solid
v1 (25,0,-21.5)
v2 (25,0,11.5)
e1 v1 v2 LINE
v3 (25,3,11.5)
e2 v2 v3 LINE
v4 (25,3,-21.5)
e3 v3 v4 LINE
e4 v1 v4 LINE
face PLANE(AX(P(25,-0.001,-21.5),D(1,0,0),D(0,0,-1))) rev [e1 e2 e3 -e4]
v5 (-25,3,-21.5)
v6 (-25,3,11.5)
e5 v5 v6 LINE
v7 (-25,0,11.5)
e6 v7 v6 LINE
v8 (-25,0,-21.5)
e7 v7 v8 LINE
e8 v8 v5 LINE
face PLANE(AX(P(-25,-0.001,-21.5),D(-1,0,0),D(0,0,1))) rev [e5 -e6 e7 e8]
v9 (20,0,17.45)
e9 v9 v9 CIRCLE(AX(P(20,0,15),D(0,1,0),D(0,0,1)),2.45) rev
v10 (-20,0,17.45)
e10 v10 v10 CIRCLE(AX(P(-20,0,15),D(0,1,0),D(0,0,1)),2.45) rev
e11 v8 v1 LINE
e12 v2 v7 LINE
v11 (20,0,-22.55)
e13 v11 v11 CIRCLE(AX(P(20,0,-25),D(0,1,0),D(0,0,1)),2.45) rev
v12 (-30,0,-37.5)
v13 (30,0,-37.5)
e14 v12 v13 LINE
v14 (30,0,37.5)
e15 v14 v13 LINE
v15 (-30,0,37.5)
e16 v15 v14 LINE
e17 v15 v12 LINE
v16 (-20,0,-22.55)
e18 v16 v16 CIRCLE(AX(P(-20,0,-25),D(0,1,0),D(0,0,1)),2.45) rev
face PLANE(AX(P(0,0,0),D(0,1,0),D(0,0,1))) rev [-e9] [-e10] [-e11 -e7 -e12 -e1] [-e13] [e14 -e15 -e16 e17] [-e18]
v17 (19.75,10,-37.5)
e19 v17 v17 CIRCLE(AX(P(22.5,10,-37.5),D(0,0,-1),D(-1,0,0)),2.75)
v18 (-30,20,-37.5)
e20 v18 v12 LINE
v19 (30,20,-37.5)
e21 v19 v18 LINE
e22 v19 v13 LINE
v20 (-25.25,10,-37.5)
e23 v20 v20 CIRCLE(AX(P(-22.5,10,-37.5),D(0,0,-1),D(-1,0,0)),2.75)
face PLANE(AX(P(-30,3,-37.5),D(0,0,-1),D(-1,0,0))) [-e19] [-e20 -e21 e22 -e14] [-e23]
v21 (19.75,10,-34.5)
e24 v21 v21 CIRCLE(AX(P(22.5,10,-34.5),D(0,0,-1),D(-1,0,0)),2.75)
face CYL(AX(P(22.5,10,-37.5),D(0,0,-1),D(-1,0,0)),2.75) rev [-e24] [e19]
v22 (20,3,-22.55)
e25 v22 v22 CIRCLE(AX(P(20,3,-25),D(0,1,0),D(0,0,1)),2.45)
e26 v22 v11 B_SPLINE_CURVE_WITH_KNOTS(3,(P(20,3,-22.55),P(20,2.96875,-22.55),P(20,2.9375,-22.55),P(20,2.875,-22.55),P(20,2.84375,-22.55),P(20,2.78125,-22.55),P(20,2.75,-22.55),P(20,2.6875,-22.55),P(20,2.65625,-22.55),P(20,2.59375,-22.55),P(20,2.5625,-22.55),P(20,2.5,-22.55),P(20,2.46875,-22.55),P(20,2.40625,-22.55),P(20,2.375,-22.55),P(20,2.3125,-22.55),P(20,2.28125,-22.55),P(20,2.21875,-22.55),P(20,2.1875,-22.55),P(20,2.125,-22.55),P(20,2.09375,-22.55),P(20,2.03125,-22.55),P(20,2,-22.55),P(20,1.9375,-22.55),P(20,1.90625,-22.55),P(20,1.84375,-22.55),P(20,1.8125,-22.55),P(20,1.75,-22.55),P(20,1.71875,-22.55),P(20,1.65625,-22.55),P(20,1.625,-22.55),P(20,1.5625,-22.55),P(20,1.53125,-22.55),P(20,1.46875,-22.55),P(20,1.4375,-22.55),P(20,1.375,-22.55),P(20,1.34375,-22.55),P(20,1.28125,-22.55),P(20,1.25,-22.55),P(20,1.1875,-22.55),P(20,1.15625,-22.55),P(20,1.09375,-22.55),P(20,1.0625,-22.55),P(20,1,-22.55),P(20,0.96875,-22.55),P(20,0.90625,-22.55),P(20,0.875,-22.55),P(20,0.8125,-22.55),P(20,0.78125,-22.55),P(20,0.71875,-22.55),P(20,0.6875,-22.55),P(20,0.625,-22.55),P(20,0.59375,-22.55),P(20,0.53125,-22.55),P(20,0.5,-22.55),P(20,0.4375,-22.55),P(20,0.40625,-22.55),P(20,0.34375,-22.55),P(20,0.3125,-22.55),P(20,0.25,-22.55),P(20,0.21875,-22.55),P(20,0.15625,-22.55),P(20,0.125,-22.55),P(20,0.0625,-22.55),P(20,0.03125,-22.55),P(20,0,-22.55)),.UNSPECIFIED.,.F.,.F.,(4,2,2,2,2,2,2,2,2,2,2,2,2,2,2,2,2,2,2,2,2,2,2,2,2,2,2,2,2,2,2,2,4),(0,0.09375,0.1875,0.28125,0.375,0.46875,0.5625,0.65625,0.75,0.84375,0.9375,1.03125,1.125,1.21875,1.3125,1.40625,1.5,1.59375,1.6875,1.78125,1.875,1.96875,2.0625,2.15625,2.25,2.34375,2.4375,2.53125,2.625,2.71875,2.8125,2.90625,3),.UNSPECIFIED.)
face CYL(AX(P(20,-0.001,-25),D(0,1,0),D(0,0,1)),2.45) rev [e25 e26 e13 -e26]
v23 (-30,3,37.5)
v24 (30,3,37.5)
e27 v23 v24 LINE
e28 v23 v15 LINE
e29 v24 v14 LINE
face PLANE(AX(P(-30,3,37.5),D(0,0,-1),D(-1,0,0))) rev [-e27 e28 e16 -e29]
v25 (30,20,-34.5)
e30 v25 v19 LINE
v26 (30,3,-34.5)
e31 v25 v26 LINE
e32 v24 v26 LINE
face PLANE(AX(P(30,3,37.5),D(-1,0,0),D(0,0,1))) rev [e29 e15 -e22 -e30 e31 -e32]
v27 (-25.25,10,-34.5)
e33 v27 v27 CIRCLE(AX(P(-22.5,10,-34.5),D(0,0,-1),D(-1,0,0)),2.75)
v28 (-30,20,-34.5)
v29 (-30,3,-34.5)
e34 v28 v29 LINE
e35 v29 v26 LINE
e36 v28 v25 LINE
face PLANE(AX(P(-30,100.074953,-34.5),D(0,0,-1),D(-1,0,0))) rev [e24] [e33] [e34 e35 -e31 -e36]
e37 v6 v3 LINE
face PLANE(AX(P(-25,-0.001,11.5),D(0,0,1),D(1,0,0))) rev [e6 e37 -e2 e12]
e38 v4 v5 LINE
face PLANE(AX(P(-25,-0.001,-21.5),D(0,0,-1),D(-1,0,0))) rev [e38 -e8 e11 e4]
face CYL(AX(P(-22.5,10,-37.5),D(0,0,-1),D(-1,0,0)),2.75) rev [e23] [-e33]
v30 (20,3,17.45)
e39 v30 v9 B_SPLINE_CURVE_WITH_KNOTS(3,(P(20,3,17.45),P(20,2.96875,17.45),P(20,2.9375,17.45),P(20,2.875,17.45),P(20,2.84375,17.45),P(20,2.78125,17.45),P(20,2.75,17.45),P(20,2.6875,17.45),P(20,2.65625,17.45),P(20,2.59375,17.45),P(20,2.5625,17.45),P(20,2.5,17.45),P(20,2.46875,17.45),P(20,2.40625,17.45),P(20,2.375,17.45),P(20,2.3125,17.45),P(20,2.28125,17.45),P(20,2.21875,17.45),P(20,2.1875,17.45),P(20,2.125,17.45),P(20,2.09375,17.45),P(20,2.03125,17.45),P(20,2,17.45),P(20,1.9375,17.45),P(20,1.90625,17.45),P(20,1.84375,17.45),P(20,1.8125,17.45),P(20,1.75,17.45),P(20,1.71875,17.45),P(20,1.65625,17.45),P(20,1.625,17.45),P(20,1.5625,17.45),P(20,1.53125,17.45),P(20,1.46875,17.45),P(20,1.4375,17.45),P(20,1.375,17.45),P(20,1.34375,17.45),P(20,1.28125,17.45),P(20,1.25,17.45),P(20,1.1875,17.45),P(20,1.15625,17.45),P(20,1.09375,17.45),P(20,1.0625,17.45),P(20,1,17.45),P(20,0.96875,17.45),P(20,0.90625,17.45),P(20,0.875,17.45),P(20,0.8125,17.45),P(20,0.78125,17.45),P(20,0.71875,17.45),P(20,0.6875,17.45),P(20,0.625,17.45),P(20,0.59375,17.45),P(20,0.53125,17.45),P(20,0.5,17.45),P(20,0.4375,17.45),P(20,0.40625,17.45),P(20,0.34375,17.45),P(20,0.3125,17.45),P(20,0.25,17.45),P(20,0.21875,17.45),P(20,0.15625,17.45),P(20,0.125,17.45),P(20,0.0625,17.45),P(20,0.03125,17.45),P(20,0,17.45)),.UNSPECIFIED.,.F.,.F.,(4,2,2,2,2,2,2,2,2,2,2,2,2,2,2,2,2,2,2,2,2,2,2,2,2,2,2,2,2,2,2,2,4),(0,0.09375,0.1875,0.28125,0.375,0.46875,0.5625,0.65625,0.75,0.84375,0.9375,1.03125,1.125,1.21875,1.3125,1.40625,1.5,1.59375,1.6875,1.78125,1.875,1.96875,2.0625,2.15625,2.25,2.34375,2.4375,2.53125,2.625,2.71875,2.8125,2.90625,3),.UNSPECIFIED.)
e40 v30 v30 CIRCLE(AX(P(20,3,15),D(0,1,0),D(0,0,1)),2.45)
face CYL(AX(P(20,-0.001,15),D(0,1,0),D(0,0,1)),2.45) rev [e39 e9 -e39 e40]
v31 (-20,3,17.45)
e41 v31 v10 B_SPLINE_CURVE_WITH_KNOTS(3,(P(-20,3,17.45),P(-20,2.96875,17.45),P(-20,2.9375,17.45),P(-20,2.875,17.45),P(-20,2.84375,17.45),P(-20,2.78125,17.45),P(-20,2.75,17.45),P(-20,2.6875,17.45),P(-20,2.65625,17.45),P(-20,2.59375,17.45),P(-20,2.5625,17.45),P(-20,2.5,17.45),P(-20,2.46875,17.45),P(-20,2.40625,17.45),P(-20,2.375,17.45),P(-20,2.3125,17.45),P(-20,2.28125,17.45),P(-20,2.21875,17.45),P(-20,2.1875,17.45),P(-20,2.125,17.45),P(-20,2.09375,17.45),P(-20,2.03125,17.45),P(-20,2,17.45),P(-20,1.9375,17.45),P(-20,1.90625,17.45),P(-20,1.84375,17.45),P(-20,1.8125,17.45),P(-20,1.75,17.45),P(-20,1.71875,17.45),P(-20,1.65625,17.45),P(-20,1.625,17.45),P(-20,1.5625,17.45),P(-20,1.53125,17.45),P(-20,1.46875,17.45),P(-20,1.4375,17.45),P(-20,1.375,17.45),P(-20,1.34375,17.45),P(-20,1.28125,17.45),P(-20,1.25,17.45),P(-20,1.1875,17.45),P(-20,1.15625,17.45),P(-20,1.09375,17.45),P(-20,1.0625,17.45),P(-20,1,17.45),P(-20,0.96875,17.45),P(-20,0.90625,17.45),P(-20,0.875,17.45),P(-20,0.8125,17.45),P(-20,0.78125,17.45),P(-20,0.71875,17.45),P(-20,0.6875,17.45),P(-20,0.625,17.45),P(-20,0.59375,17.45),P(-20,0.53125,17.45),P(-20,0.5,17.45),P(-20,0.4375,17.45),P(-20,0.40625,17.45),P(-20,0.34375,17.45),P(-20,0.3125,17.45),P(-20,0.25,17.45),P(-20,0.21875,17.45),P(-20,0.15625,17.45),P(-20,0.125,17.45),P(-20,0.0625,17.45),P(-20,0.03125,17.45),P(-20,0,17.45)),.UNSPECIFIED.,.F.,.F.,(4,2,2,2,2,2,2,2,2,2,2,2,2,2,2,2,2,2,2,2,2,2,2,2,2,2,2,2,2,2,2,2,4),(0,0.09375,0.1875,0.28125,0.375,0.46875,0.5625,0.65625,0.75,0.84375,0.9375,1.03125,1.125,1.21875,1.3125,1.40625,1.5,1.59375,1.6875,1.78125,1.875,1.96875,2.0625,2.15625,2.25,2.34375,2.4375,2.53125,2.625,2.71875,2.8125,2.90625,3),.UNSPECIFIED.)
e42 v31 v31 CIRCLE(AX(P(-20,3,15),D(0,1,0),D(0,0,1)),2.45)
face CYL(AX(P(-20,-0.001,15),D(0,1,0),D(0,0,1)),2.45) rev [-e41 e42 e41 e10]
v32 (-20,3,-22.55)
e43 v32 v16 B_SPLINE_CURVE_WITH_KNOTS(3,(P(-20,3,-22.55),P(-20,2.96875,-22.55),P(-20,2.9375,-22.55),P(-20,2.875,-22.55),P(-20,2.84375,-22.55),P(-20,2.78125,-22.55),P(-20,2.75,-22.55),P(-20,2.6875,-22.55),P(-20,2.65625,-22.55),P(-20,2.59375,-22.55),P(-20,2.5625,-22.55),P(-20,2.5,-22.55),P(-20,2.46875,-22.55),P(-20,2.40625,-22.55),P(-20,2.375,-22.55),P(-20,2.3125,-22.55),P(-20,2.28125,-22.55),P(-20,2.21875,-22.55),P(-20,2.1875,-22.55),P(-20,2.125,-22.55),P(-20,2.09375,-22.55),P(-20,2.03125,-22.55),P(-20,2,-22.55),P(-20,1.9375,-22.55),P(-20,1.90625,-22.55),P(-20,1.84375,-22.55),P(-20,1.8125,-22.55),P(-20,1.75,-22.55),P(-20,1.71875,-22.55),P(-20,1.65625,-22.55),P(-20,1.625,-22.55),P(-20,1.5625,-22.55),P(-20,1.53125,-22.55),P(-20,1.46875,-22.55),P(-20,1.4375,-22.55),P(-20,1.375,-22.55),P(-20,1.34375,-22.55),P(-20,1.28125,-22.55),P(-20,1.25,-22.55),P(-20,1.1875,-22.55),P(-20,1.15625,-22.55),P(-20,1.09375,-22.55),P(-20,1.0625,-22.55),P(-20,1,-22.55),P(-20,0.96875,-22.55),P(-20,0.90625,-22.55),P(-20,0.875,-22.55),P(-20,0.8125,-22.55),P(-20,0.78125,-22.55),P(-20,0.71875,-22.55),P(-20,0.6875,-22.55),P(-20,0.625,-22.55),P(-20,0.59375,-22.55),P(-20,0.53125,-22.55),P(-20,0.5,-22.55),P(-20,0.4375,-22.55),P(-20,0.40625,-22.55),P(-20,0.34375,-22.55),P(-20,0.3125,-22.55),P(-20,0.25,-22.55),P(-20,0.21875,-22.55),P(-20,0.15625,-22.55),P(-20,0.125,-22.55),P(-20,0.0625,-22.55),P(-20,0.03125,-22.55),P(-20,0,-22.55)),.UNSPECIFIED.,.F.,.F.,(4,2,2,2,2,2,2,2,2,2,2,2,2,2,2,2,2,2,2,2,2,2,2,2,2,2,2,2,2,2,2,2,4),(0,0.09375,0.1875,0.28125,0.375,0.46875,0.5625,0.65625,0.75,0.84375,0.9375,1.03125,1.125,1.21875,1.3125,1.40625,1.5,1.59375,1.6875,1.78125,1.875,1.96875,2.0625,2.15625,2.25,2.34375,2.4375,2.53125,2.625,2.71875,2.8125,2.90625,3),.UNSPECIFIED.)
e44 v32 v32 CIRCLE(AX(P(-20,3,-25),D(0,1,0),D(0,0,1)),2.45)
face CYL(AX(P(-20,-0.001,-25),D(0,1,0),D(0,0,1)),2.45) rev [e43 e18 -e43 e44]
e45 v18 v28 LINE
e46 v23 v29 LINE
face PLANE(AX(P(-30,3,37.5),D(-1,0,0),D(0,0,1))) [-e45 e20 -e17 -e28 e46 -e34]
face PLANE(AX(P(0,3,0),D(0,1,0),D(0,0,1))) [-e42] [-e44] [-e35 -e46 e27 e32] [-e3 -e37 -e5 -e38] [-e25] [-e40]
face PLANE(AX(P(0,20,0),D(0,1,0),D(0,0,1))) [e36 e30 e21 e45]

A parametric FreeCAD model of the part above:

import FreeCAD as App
import Part
import Sketcher
from FreeCAD import Vector


def add_polygon(sketch, points):
    """Adds a closed chain of lines whose ends are joined by coincident constraints."""
    first, n = sketch.GeometryCount, len(points)
    for a, b in zip(points, points[1:] + points[:1]):
        sketch.addGeometry(Part.LineSegment(App.Vector(*a, 0), App.Vector(*b, 0)), False)
    for i in range(n):
        sketch.addConstraint(Sketcher.Constraint("Coincident", first + i, 2, first + (i + 1) % n, 1))

doc = App.newDocument("Part")
body = doc.addObject("PartDesign::Body", "Body")

sketch1 = body.newObject("Sketcher::SketchObject", "Sketch")
sketch1.AttachmentSupport = (doc.getObject("XZ_Plane"), [""])
sketch1.MapMode = "FlatFace"
add_polygon(sketch1, [(-30, -38), (-30, 38), (30, 38), (30, -38)])
sketch1.addConstraint([
    Sketcher.Constraint("Vertical", 0),
    Sketcher.Constraint("Horizontal", 1),
    Sketcher.Constraint("Vertical", 2),
    Sketcher.Constraint("Horizontal", 3),
    Sketcher.Constraint("Symmetric", 0, 2, 2, 2, -1, 1),
    Sketcher.Constraint("DistanceX", 1, 1, 1, 2, 60.0),
    Sketcher.Constraint("DistanceY", 0, 1, 0, 2, 75.0),
])
pad1 = body.newObject("PartDesign::Pad", "Pad")
pad1.Profile = sketch1
pad1.Length = 3
pad1.Reversed = True

sketch2 = body.newObject("Sketcher::SketchObject", "Sketch001")
sketch2.AttachmentSupport = (doc.getObject("XZ_Plane"), [""])
sketch2.MapMode = "FlatFace"
sketch2.AttachmentOffset = App.Placement(Vector(0, 0, -3), App.Rotation())
add_polygon(sketch2, [(-30, -37.5), (-30, -34.5), (30, -34.5), (30, -37.5)])
sketch2.addConstraint([
    Sketcher.Constraint("Vertical", 0),
    Sketcher.Constraint("Horizontal", 1),
    Sketcher.Constraint("Vertical", 2),
    Sketcher.Constraint("Horizontal", 3),
    Sketcher.Constraint("DistanceX", 1, 1, 1, 2, 60.0),
    Sketcher.Constraint("DistanceY", 0, 1, 0, 2, 3.0),
    Sketcher.Constraint("DistanceX", 0, 2, -1, 1, 30.0),
    Sketcher.Constraint("DistanceY", 0, 2, -1, 1, 34.5),
])
pad2 = body.newObject("PartDesign::Pad", "Pad001")
pad2.Profile = sketch2
pad2.Length = 17
pad2.Reversed = True

sketch3 = body.newObject("Sketcher::SketchObject", "Sketch002")
sketch3.AttachmentSupport = (doc.getObject("XZ_Plane"), [""])
sketch3.MapMode = "FlatFace"
sketch3.AttachmentOffset = App.Placement(Vector(0, 0, -3), App.Rotation())
add_polygon(sketch3, [(-25, -22), (-25, 12), (25, 12), (25, -22)])
sketch3.addConstraint([
    Sketcher.Constraint("Vertical", 0),
    Sketcher.Constraint("Horizontal", 1),
    Sketcher.Constraint("Vertical", 2),
    Sketcher.Constraint("Horizontal", 3),
    Sketcher.Constraint("DistanceX", 1, 1, 1, 2, 50.0),
    Sketcher.Constraint("DistanceY", 0, 1, 0, 2, 33.0),
    Sketcher.Constraint("DistanceX", 0, 2, -1, 1, 25.0),
    Sketcher.Constraint("DistanceY", -1, 1, 0, 2, 11.5),
])
pocket1 = body.newObject("PartDesign::Pocket", "Pocket")
pocket1.Profile = sketch3
pocket1.Type = "UpToFirst"
pocket1.Reversed = True

sketch4 = body.newObject("Sketcher::SketchObject", "Sketch003")
sketch4.AttachmentSupport = (doc.getObject("XZ_Plane"), [""])
sketch4.MapMode = "FlatFace"
sketch4.AttachmentOffset = App.Placement(Vector(0, 0, -3), App.Rotation())
sketch4.addGeometry(Part.Circle(Vector(-20, -25, 0), Vector(0, 0, 1), 2.5), False)
sketch4.addConstraint([
    Sketcher.Constraint("Diameter", 0, 4.9),
    Sketcher.Constraint("DistanceX", 0, 3, -1, 1, 20.0),
    Sketcher.Constraint("DistanceY", 0, 3, -1, 1, 25.0),
])
pocket2 = body.newObject("PartDesign::Pocket", "Pocket001")
pocket2.Profile = sketch4
pocket2.Type = "UpToFirst"
pocket2.Reversed = True

sketch5 = body.newObject("Sketcher::SketchObject", "Sketch004")
sketch5.AttachmentSupport = (doc.getObject("XZ_Plane"), [""])
sketch5.MapMode = "FlatFace"
sketch5.AttachmentOffset = App.Placement(Vector(0, 0, -3), App.Rotation())
sketch5.addGeometry(Part.Circle(Vector(20, -25, 0), Vector(0, 0, 1), 2.5), False)
sketch5.addConstraint([
    Sketcher.Constraint("Diameter", 0, 4.9),
    Sketcher.Constraint("DistanceX", -1, 1, 0, 3, 20.0),
    Sketcher.Constraint("DistanceY", 0, 3, -1, 1, 25.0),
])
pocket3 = body.newObject("PartDesign::Pocket", "Pocket002")
pocket3.Profile = sketch5
pocket3.Type = "UpToFirst"
pocket3.Reversed = True

sketch6 = body.newObject("Sketcher::SketchObject", "Sketch005")
sketch6.AttachmentSupport = (doc.getObject("XZ_Plane"), [""])
sketch6.MapMode = "FlatFace"
sketch6.AttachmentOffset = App.Placement(Vector(0, 0, -3), App.Rotation())
sketch6.addGeometry(Part.Circle(Vector(20, 15, 0), Vector(0, 0, 1), 2.5), False)
sketch6.addConstraint([
    Sketcher.Constraint("Diameter", 0, 4.9),
    Sketcher.Constraint("DistanceX", -1, 1, 0, 3, 20.0),
    Sketcher.Constraint("DistanceY", -1, 1, 0, 3, 15.0),
])
pocket4 = body.newObject("PartDesign::Pocket", "Pocket003")
pocket4.Profile = sketch6
pocket4.Type = "UpToFirst"
pocket4.Reversed = True

sketch7 = body.newObject("Sketcher::SketchObject", "Sketch006")
sketch7.AttachmentSupport = (doc.getObject("XZ_Plane"), [""])
sketch7.MapMode = "FlatFace"
sketch7.AttachmentOffset = App.Placement(Vector(0, 0, -3), App.Rotation())
sketch7.addGeometry(Part.Circle(Vector(-20, 15, 0), Vector(0, 0, 1), 2.5), False)
sketch7.addConstraint([
    Sketcher.Constraint("Diameter", 0, 4.9),
    Sketcher.Constraint("DistanceX", 0, 3, -1, 1, 20.0),
    Sketcher.Constraint("DistanceY", -1, 1, 0, 3, 15.0),
])
pocket5 = body.newObject("PartDesign::Pocket", "Pocket004")
pocket5.Profile = sketch7
pocket5.Type = "UpToFirst"
pocket5.Reversed = True

sketch8 = body.newObject("Sketcher::SketchObject", "Sketch007")
sketch8.AttachmentSupport = (doc.getObject("XY_Plane"), [""])
sketch8.MapMode = "FlatFace"
sketch8.AttachmentOffset = App.Placement(Vector(0, 0, -37.5), App.Rotation())
sketch8.addGeometry([
    Part.Circle(Vector(22.5, 10, 0), Vector(0, 0, 1), 2.8),
    Part.Circle(Vector(-22.5, 10, 0), Vector(0, 0, 1), 2.8),
], False)
sketch8.addConstraint([
    Sketcher.Constraint("Equal", 0, 1),
    Sketcher.Constraint("Symmetric", 0, 3, 1, 3, -2),
    Sketcher.Constraint("Diameter", 0, 5.5),
    Sketcher.Constraint("DistanceY", -1, 1, 0, 3, 10.0),
    Sketcher.Constraint("DistanceX", 1, 3, 0, 3, 45.0),
])
doc.recompute()
hole = body.newObject("PartDesign::Hole", "Hole")
hole.Profile = sketch8
hole.ThreadType = "None"
hole.Diameter = 5.5
hole.DepthType = "ThroughAll"
hole.Reversed = True

doc.recompute()
